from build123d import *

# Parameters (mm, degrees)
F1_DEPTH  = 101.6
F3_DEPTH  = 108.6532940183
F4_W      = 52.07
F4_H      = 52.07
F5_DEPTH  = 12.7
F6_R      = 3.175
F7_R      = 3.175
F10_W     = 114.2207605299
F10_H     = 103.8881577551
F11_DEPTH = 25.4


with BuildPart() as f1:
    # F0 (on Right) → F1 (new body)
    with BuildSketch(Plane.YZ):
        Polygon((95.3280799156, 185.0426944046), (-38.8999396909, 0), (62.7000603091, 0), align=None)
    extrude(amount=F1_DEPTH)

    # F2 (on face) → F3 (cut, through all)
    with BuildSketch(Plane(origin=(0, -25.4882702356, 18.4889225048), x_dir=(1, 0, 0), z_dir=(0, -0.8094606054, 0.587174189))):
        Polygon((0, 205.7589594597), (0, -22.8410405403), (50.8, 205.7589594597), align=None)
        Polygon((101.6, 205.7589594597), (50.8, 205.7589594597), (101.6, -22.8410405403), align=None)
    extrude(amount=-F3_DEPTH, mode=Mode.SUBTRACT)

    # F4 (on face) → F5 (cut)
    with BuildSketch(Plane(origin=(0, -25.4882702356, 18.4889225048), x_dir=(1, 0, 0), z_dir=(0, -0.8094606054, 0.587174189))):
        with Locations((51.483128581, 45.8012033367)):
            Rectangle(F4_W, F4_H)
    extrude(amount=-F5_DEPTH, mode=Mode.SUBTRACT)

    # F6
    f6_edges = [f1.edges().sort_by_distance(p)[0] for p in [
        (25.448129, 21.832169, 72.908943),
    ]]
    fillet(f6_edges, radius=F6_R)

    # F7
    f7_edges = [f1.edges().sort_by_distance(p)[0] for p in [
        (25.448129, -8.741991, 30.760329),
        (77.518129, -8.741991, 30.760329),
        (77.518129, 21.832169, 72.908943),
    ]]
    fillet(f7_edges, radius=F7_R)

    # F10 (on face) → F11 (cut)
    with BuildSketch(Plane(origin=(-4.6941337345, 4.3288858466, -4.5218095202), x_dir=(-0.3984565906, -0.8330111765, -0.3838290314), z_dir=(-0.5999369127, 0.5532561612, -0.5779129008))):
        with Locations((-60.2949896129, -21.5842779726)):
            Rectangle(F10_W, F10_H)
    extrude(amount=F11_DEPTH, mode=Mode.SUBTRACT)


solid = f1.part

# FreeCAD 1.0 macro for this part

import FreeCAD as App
import Part
import Sketcher
from FreeCAD import Vector
Q = App.Units.Quantity


def edges_at(feature, points):
    """Names of the edges that pass closest to the given points."""
    edges = feature.Shape.Edges
    near = lambda p: min(range(len(edges)), key=lambda i: edges[i].distToShape(Part.Vertex(*p))[0])
    return sorted({f"Edge{near(p) + 1}" for p in points})

doc = App.newDocument("Part")
body = doc.addObject("PartDesign::Body", "Body")

sketch1 = body.newObject("Sketcher::SketchObject", "Sketch")
sketch1.AttachmentSupport = (doc.getObject("YZ_Plane"), [""])
sketch1.MapMode = "FlatFace"
sketch1.addGeometry(Part.LineSegment(Vector(95, 185, 0), Vector(-39, 0, 0)), False)
sketch1.addGeometry(Part.LineSegment(Vector(-39, 0, 0), Vector(63, 0, 0)), False)
sketch1.addGeometry(Part.LineSegment(Vector(63, 0, 0), Vector(95, 185, 0)), False)
sketch1.addConstraint(Sketcher.Constraint("Coincident", 0, 2, 1, 1))
sketch1.addConstraint(Sketcher.Constraint("Coincident", 1, 2, 2, 1))
sketch1.addConstraint(Sketcher.Constraint("Coincident", 2, 2, 0, 1))
sketch1.addConstraint(Sketcher.Constraint("Horizontal", 1))
sketch1.addConstraint(Sketcher.Constraint("PointOnObject", 0, 2, -1))
sketch1.addConstraint(Sketcher.Constraint("DistanceX", 1, 1, 1, 2, Q("4 in")))
sketch1.addConstraint(Sketcher.Constraint("Distance", 0, Q("9 in")))
sketch1.addConstraint(Sketcher.Constraint("Angle", 2, Q("80 deg")))
sketch1.addConstraint(Sketcher.Constraint("DistanceX", 0, 2, -1, 1, 38.89994))
pad1 = body.newObject("PartDesign::Pad", "Pad")
pad1.Profile = sketch1
pad1.Length = Q("4 in")

sketch2 = body.newObject("Sketcher::SketchObject", "Sketch001")
sketch2.Placement = App.Placement(Vector(0, -25.48827, 18.488923), App.Rotation(Vector(1, 0, 0), Vector(0, 0.587174189, 0.809460605), Vector(0, -0.809460605, 0.587174189), "ZXY"))
sketch2.addGeometry(Part.LineSegment(Vector(0, 206, 0), Vector(0, -23, 0)), False)
sketch2.addGeometry(Part.LineSegment(Vector(0, -23, 0), Vector(51, 206, 0)), False)
sketch2.addGeometry(Part.LineSegment(Vector(51, 206, 0), Vector(0, 206, 0)), False)
sketch2.addGeometry(Part.LineSegment(Vector(102, 206, 0), Vector(51, 206, 0)), False)
sketch2.addGeometry(Part.LineSegment(Vector(51, 206, 0), Vector(102, -23, 0)), False)
sketch2.addGeometry(Part.LineSegment(Vector(102, -23, 0), Vector(102, 206, 0)), False)
sketch2.addConstraint(Sketcher.Constraint("Coincident", 0, 2, 1, 1))
sketch2.addConstraint(Sketcher.Constraint("Coincident", 1, 2, 2, 1))
sketch2.addConstraint(Sketcher.Constraint("Coincident", 2, 2, 0, 1))
sketch2.addConstraint(Sketcher.Constraint("Coincident", 3, 2, 4, 1))
sketch2.addConstraint(Sketcher.Constraint("Coincident", 4, 2, 5, 1))
sketch2.addConstraint(Sketcher.Constraint("Coincident", 5, 2, 3, 1))
sketch2.addConstraint(Sketcher.Constraint("Vertical", 0))
sketch2.addConstraint(Sketcher.Constraint("Horizontal", 2))
sketch2.addConstraint(Sketcher.Constraint("Horizontal", 3))
sketch2.addConstraint(Sketcher.Constraint("Vertical", 5))
sketch2.addConstraint(Sketcher.Constraint("Coincident", 3, 2, 1, 2))
sketch2.addConstraint(Sketcher.Constraint("PointOnObject", 0, 2, -2))
sketch2.addConstraint(Sketcher.Constraint("Horizontal", 0, 2, 4, 2))
sketch2.addConstraint(Sketcher.Constraint("Equal", 2, 3))
sketch2.addConstraint(Sketcher.Constraint("DistanceX", 2, 2, 2, 1, Q("2 in")))
sketch2.addConstraint(Sketcher.Constraint("DistanceY", 0, 2, 0, 1, Q("9 in")))
sketch2.addConstraint(Sketcher.Constraint("DistanceY", 0, 2, -1, 1, 22.841041))
pocket1 = body.newObject("PartDesign::Pocket", "Pocket")
pocket1.Profile = sketch2
pocket1.Type = "ThroughAll"

sketch3 = body.newObject("Sketcher::SketchObject", "Sketch002")
sketch3.Placement = App.Placement(Vector(0, -25.48827, 18.488923), App.Rotation(Vector(1, 0, 0), Vector(0, 0.587174189, 0.809460605), Vector(0, -0.809460605, 0.587174189), "ZXY"))
sketch3.addGeometry(Part.LineSegment(Vector(25, 72, 0), Vector(25, 20, 0)), False)
sketch3.addGeometry(Part.LineSegment(Vector(25, 20, 0), Vector(78, 20, 0)), False)
sketch3.addGeometry(Part.LineSegment(Vector(78, 20, 0), Vector(78, 72, 0)), False)
sketch3.addGeometry(Part.LineSegment(Vector(78, 72, 0), Vector(25, 72, 0)), False)
sketch3.addConstraint(Sketcher.Constraint("Coincident", 0, 2, 1, 1))
sketch3.addConstraint(Sketcher.Constraint("Coincident", 1, 2, 2, 1))
sketch3.addConstraint(Sketcher.Constraint("Coincident", 2, 2, 3, 1))
sketch3.addConstraint(Sketcher.Constraint("Coincident", 3, 2, 0, 1))
sketch3.addConstraint(Sketcher.Constraint("Vertical", 0))
sketch3.addConstraint(Sketcher.Constraint("Horizontal", 1))
sketch3.addConstraint(Sketcher.Constraint("Vertical", 2))
sketch3.addConstraint(Sketcher.Constraint("Horizontal", 3))
sketch3.addConstraint(Sketcher.Constraint("Equal", 3, 0))
sketch3.addConstraint(Sketcher.Constraint("DistanceX", 1, 1, 1, 2, Q("2.05 in")))
sketch3.addConstraint(Sketcher.Constraint("DistanceX", -1, 1, 0, 2, 25.448129))
sketch3.addConstraint(Sketcher.Constraint("DistanceY", -1, 1, 0, 2, 19.766203))
pocket2 = body.newObject("PartDesign::Pocket", "Pocket001")
pocket2.Profile = sketch3
pocket2.Length = Q("0.5 in")
doc.recompute()

fillet = body.newObject("PartDesign::Fillet", "Fillet")
fillet.Base = (pocket2, edges_at(pocket2, [(25.448, 21.832, 72.909)]))
fillet.Radius = Q("0.125 in")
doc.recompute()

fillet2 = body.newObject("PartDesign::Fillet", "Fillet001")
fillet2.Base = (fillet, edges_at(fillet, [(25.448, -8.742, 30.76), (77.518, -8.742, 30.76), (77.518, 21.832, 72.909)]))
fillet2.Radius = Q("0.125 in")

sketch4 = body.newObject("Sketcher::SketchObject", "Sketch003")
sketch4.Placement = App.Placement(Vector(-4.694134, 4.328886, -4.52181), App.Rotation(Vector(-0.398456591, -0.833011176, -0.383829031), Vector(-0.693763681, 0, 0.720202717), Vector(-0.599936913, 0.553256161, -0.577912901), "ZXY"))
sketch4.addGeometry(Part.LineSegment(Vector(-117, 30, 0), Vector(-117, -74, 0)), False)
sketch4.addGeometry(Part.LineSegment(Vector(-117, -74, 0), Vector(-3, -74, 0)), False)
sketch4.addGeometry(Part.LineSegment(Vector(-3, -74, 0), Vector(-3, 30, 0)), False)
sketch4.addGeometry(Part.LineSegment(Vector(-3, 30, 0), Vector(-117, 30, 0)), False)
sketch4.addConstraint(Sketcher.Constraint("Coincident", 0, 2, 1, 1))
sketch4.addConstraint(Sketcher.Constraint("Coincident", 1, 2, 2, 1))
sketch4.addConstraint(Sketcher.Constraint("Coincident", 2, 2, 3, 1))
sketch4.addConstraint(Sketcher.Constraint("Coincident", 3, 2, 0, 1))
sketch4.addConstraint(Sketcher.Constraint("Vertical", 0))
sketch4.addConstraint(Sketcher.Constraint("Horizontal", 1))
sketch4.addConstraint(Sketcher.Constraint("Vertical", 2))
sketch4.addConstraint(Sketcher.Constraint("Horizontal", 3))
sketch4.addConstraint(Sketcher.Constraint("DistanceX", 1, 1, 1, 2, 114.22076))
sketch4.addConstraint(Sketcher.Constraint("DistanceY", -1, 1, 2, 2, 30.359801))
sketch4.addConstraint(Sketcher.Constraint("DistanceY", 0, 2, 0, 1, 103.888158))
sketch4.addConstraint(Sketcher.Constraint("DistanceX", 0, 2, -1, 1, 117.40537))
pocket3 = body.newObject("PartDesign::Pocket", "Pocket002")
pocket3.Profile = sketch4
pocket3.Length = Q("1 in")
pocket3.Reversed = True

doc.recompute()
